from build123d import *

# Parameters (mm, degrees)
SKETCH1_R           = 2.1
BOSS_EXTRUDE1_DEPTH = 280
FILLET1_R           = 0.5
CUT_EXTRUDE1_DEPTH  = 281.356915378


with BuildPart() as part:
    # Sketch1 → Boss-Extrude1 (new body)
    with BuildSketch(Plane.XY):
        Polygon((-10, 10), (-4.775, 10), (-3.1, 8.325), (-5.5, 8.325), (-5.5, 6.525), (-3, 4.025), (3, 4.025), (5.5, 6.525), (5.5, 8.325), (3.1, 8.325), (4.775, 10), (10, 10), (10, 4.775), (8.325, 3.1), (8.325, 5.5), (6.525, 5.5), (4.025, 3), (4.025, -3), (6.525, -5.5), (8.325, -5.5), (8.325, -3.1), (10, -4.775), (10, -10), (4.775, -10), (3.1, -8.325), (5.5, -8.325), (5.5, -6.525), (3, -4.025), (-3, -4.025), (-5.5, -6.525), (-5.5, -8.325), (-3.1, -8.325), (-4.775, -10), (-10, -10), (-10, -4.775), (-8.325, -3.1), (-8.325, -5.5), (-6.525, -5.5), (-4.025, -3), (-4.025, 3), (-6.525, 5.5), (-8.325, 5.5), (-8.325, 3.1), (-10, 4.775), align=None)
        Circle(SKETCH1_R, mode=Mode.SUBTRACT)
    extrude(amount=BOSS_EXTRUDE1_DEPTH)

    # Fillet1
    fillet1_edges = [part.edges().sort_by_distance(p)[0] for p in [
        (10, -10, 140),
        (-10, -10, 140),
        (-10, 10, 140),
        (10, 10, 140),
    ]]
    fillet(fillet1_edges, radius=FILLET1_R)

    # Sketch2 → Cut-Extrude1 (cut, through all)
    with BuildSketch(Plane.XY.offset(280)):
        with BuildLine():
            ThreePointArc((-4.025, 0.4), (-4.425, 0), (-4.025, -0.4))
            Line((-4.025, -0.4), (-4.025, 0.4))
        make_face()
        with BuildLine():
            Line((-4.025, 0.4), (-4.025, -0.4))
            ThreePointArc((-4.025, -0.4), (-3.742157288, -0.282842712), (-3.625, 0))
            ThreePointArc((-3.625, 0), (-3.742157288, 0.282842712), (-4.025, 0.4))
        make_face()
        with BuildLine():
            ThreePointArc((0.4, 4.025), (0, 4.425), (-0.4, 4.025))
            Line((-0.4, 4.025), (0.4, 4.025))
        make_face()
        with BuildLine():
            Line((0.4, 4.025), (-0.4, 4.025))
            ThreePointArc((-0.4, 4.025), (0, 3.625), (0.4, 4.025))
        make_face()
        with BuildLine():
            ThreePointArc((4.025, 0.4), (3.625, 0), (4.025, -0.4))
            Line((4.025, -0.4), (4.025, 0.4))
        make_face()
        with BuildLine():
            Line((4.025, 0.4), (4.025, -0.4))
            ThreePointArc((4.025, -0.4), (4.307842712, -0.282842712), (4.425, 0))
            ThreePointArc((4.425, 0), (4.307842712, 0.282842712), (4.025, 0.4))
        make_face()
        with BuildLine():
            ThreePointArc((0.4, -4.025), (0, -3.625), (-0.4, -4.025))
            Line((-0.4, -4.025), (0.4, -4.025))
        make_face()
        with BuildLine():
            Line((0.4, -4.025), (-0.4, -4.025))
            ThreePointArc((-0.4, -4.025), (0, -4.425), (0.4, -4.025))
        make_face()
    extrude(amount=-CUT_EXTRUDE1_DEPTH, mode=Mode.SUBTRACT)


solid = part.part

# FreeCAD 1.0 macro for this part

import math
import FreeCAD as App
import Part
import Sketcher
from FreeCAD import Vector


def edges_at(feature, points):
    """Names of the edges that pass closest to the given points."""
    edges = feature.Shape.Edges
    near = lambda p: min(range(len(edges)), key=lambda i: edges[i].distToShape(Part.Vertex(*p))[0])
    return sorted({f"Edge{near(p) + 1}" for p in points})

doc = App.newDocument("Part")
body = doc.addObject("PartDesign::Body", "Body")

# Sketch on XY plane
sketch1 = body.newObject("Sketcher::SketchObject", "Sketch")
sketch1.AttachmentSupport = (doc.getObject("XY_Plane"), [""])
sketch1.MapMode = "FlatFace"
sketch1.addGeometry([
    Part.LineSegment(Vector(-4.8, 10, 0), Vector(-10, 10, 0)),  # 0
    Part.LineSegment(Vector(-10, 10, 0), Vector(-10, 4.8, 0)),  # 1
    Part.LineSegment(Vector(-10, 4.8, 0), Vector(-8.3, 3.1, 0)),  # 2
    Part.LineSegment(Vector(-8.3, 3.1, 0), Vector(-8.3, 5.5, 0)),  # 3
    Part.LineSegment(Vector(-8.3, 5.5, 0), Vector(-6.5, 5.5, 0)),  # 4
    Part.LineSegment(Vector(-6.5, 5.5, 0), Vector(-4, 3, 0)),  # 5
    Part.LineSegment(Vector(-4, 3, 0), Vector(-4, -3, 0)),  # 6
    Part.LineSegment(Vector(-4, -3, 0), Vector(-6.5, -5.5, 0)),  # 7
    Part.LineSegment(Vector(-6.5, -5.5, 0), Vector(-8.3, -5.5, 0)),  # 8
    Part.LineSegment(Vector(-8.3, -5.5, 0), Vector(-8.3, -3.1, 0)),  # 9
    Part.LineSegment(Vector(-8.3, -3.1, 0), Vector(-10, -4.8, 0)),  # 10
    Part.LineSegment(Vector(-10, -4.8, 0), Vector(-10, -10, 0)),  # 11
    Part.LineSegment(Vector(-10, -10, 0), Vector(-4.8, -10, 0)),  # 12
    Part.LineSegment(Vector(-4.8, -10, 0), Vector(-3.1, -8.3, 0)),  # 13
    Part.LineSegment(Vector(-3.1, -8.3, 0), Vector(-5.5, -8.3, 0)),  # 14
    Part.LineSegment(Vector(-5.5, -8.3, 0), Vector(-5.5, -6.5, 0)),  # 15
    Part.LineSegment(Vector(-5.5, -6.5, 0), Vector(-3, -4, 0)),  # 16
    Part.LineSegment(Vector(-3, -4, 0), Vector(3, -4, 0)),  # 17
    Part.LineSegment(Vector(3, -4, 0), Vector(5.5, -6.5, 0)),  # 18
    Part.LineSegment(Vector(5.5, -6.5, 0), Vector(5.5, -8.3, 0)),  # 19
    Part.LineSegment(Vector(5.5, -8.3, 0), Vector(3.1, -8.3, 0)),  # 20
    Part.LineSegment(Vector(3.1, -8.3, 0), Vector(4.8, -10, 0)),  # 21
    Part.LineSegment(Vector(4.8, -10, 0), Vector(10, -10, 0)),  # 22
    Part.LineSegment(Vector(10, -10, 0), Vector(10, -4.8, 0)),  # 23
    Part.LineSegment(Vector(10, -4.8, 0), Vector(8.3, -3.1, 0)),  # 24
    Part.LineSegment(Vector(8.3, -3.1, 0), Vector(8.3, -5.5, 0)),  # 25
    Part.LineSegment(Vector(8.3, -5.5, 0), Vector(6.5, -5.5, 0)),  # 26
    Part.LineSegment(Vector(6.5, -5.5, 0), Vector(4, -3, 0)),  # 27
    Part.LineSegment(Vector(4, -3, 0), Vector(4, 3, 0)),  # 28
    Part.LineSegment(Vector(4, 3, 0), Vector(6.5, 5.5, 0)),  # 29
    Part.LineSegment(Vector(6.5, 5.5, 0), Vector(8.3, 5.5, 0)),  # 30
    Part.LineSegment(Vector(8.3, 5.5, 0), Vector(8.3, 3.1, 0)),  # 31
    Part.LineSegment(Vector(8.3, 3.1, 0), Vector(10, 4.8, 0)),  # 32
    Part.LineSegment(Vector(10, 4.8, 0), Vector(10, 10, 0)),  # 33
    Part.LineSegment(Vector(10, 10, 0), Vector(4.8, 10, 0)),  # 34
    Part.LineSegment(Vector(4.8, 10, 0), Vector(3.1, 8.3, 0)),  # 35
    Part.LineSegment(Vector(3.1, 8.3, 0), Vector(5.5, 8.3, 0)),  # 36
    Part.LineSegment(Vector(5.5, 8.3, 0), Vector(5.5, 6.5, 0)),  # 37
    Part.LineSegment(Vector(5.5, 6.5, 0), Vector(3, 4, 0)),  # 38
    Part.LineSegment(Vector(3, 4, 0), Vector(-3, 4, 0)),  # 39
    Part.LineSegment(Vector(-3, 4, 0), Vector(-5.5, 6.5, 0)),  # 40
    Part.LineSegment(Vector(-5.5, 6.5, 0), Vector(-5.5, 8.3, 0)),  # 41
    Part.LineSegment(Vector(-5.5, 8.3, 0), Vector(-3.1, 8.3, 0)),  # 42
    Part.LineSegment(Vector(-3.1, 8.3, 0), Vector(-4.8, 10, 0)),  # 43
    Part.Circle(Vector(0, 0, 0), Vector(0, 0, 1), 2.1),  # 44
], False)
sketch1.addConstraint([
    Sketcher.Constraint("Coincident", 0, 2, 1, 1),
    Sketcher.Constraint("Coincident", 1, 2, 2, 1),
    Sketcher.Constraint("Coincident", 2, 2, 3, 1),
    Sketcher.Constraint("Coincident", 3, 2, 4, 1),
    Sketcher.Constraint("Coincident", 4, 2, 5, 1),
    Sketcher.Constraint("Coincident", 5, 2, 6, 1),
    Sketcher.Constraint("Coincident", 6, 2, 7, 1),
    Sketcher.Constraint("Coincident", 7, 2, 8, 1),
    Sketcher.Constraint("Coincident", 8, 2, 9, 1),
    Sketcher.Constraint("Coincident", 9, 2, 10, 1),
    Sketcher.Constraint("Coincident", 10, 2, 11, 1),
    Sketcher.Constraint("Coincident", 11, 2, 12, 1),
    Sketcher.Constraint("Coincident", 12, 2, 13, 1),
    Sketcher.Constraint("Coincident", 13, 2, 14, 1),
    Sketcher.Constraint("Coincident", 14, 2, 15, 1),
    Sketcher.Constraint("Coincident", 15, 2, 16, 1),
    Sketcher.Constraint("Coincident", 16, 2, 17, 1),
    Sketcher.Constraint("Coincident", 17, 2, 18, 1),
    Sketcher.Constraint("Coincident", 18, 2, 19, 1),
    Sketcher.Constraint("Coincident", 19, 2, 20, 1),
    Sketcher.Constraint("Coincident", 20, 2, 21, 1),
    Sketcher.Constraint("Coincident", 21, 2, 22, 1),
    Sketcher.Constraint("Coincident", 22, 2, 23, 1),
    Sketcher.Constraint("Coincident", 23, 2, 24, 1),
    Sketcher.Constraint("Coincident", 24, 2, 25, 1),
    Sketcher.Constraint("Coincident", 25, 2, 26, 1),
    Sketcher.Constraint("Coincident", 26, 2, 27, 1),
    Sketcher.Constraint("Coincident", 27, 2, 28, 1),
    Sketcher.Constraint("Coincident", 28, 2, 29, 1),
    Sketcher.Constraint("Coincident", 29, 2, 30, 1),
    Sketcher.Constraint("Coincident", 30, 2, 31, 1),
    Sketcher.Constraint("Coincident", 31, 2, 32, 1),
    Sketcher.Constraint("Coincident", 32, 2, 33, 1),
    Sketcher.Constraint("Coincident", 33, 2, 34, 1),
    Sketcher.Constraint("Coincident", 34, 2, 35, 1),
    Sketcher.Constraint("Coincident", 35, 2, 36, 1),
    Sketcher.Constraint("Coincident", 36, 2, 37, 1),
    Sketcher.Constraint("Coincident", 37, 2, 38, 1),
    Sketcher.Constraint("Coincident", 38, 2, 39, 1),
    Sketcher.Constraint("Coincident", 39, 2, 40, 1),
    Sketcher.Constraint("Coincident", 40, 2, 41, 1),
    Sketcher.Constraint("Coincident", 41, 2, 42, 1),
    Sketcher.Constraint("Coincident", 42, 2, 43, 1),
    Sketcher.Constraint("Coincident", 43, 2, 0, 1),
    Sketcher.Constraint("Horizontal", 0),
    Sketcher.Constraint("Vertical", 1),
    Sketcher.Constraint("Vertical", 3),
    Sketcher.Constraint("Horizontal", 4),
    Sketcher.Constraint("Vertical", 6),
    Sketcher.Constraint("Horizontal", 8),
    Sketcher.Constraint("Vertical", 9),
    Sketcher.Constraint("Vertical", 11),
    Sketcher.Constraint("Horizontal", 12),
    Sketcher.Constraint("Horizontal", 14),
    Sketcher.Constraint("Vertical", 15),
    Sketcher.Constraint("Horizontal", 17),
    Sketcher.Constraint("Vertical", 19),
    Sketcher.Constraint("Horizontal", 20),
    Sketcher.Constraint("Horizontal", 22),
    Sketcher.Constraint("Vertical", 23),
    Sketcher.Constraint("Vertical", 25),
    Sketcher.Constraint("Horizontal", 26),
    Sketcher.Constraint("Vertical", 28),
    Sketcher.Constraint("Horizontal", 30),
    Sketcher.Constraint("Vertical", 31),
    Sketcher.Constraint("Vertical", 33),
    Sketcher.Constraint("Horizontal", 34),
    Sketcher.Constraint("Horizontal", 36),
    Sketcher.Constraint("Vertical", 37),
    Sketcher.Constraint("Horizontal", 39),
    Sketcher.Constraint("Vertical", 41),
    Sketcher.Constraint("Horizontal", 42),
    Sketcher.Constraint("Coincident", 44, 3, -1, 1),
    Sketcher.Constraint("Symmetric", 0, 2, 22, 2, -1, 1),
    Sketcher.Constraint("Symmetric", 2, 2, 24, 2, -1, 1),
    Sketcher.Constraint("Symmetric", 4, 2, 26, 2, -1, 1),
    Sketcher.Constraint("Symmetric", 5, 2, 27, 2, -1, 1),
    Sketcher.Constraint("Symmetric", 7, 2, 29, 2, -1, 1),
    Sketcher.Constraint("Symmetric", 9, 2, 31, 2, -1, 1),
    Sketcher.Constraint("Symmetric", 10, 2, 32, 2, -1, 1),
    Sketcher.Constraint("Symmetric", 12, 2, 34, 2, -1, 1),
    Sketcher.Constraint("Symmetric", 13, 2, 35, 2, -1, 1),
    Sketcher.Constraint("Symmetric", 15, 2, 37, 2, -1, 1),
    Sketcher.Constraint("Symmetric", 16, 2, 38, 2, -1, 1),
    Sketcher.Constraint("Symmetric", 18, 2, 40, 2, -1, 1),
    Sketcher.Constraint("Symmetric", 20, 2, 42, 2, -1, 1),
    Sketcher.Constraint("Symmetric", 15, 2, 18, 2, -2),
    Sketcher.Constraint("Symmetric", 13, 2, 20, 2, -2),
    Sketcher.Constraint("Symmetric", 12, 2, 21, 2, -2),
    Sketcher.Constraint("Symmetric", 10, 2, 23, 2, -2),
    Sketcher.Constraint("Symmetric", 9, 2, 24, 2, -2),
    Sketcher.Constraint("Symmetric", 7, 2, 26, 2, -2),
    Sketcher.Constraint("Parallel", 2, 5),
    Sketcher.Constraint("Perpendicular", 5, 7),
    Sketcher.Constraint("Parallel", 7, 10),
    Sketcher.Constraint("Parallel", 10, 13),
    Sketcher.Constraint("Parallel", 13, 16),
    Sketcher.Constraint("Perpendicular", 16, 18),
    Sketcher.Constraint("Parallel", 18, 21),
    Sketcher.Constraint("Perpendicular", 27, 29),
    Sketcher.Constraint("Perpendicular", 38, 40),
    Sketcher.Constraint("Parallel", 40, 43),
    Sketcher.Constraint("Equal", 34, 1),
    Sketcher.Constraint("Equal", 42, 3),
    Sketcher.Constraint("Equal", 39, 6),
    Sketcher.Constraint("Equal", 30, 15),
    Sketcher.Constraint("Equal", 10, 13),
    Sketcher.Constraint("Equal", 7, 16),
    Sketcher.Constraint("Diameter", 44, 4.2),
    Sketcher.Constraint("DistanceX", 17, 1, 17, 2, 6.0),
    Sketcher.Constraint("DistanceX", 4, 1, 4, 2, 1.8),
    Sketcher.Constraint("DistanceX", 14, 2, 14, 1, 2.4),
    Sketcher.Constraint("DistanceX", 0, 2, -1, 1, 10.0),
    Sketcher.Constraint("DistanceY", -1, 1, 2, 2, 3.1),
    Sketcher.Constraint("DistanceX", 0, 2, 0, 1, 5.225),
])
pad1 = body.newObject("PartDesign::Pad", "Pad")
pad1.Profile = sketch1
pad1.Length = 280
doc.recompute()

fillet = body.newObject("PartDesign::Fillet", "Fillet")
fillet.Base = (pad1, edges_at(pad1, [
    (10, -10, 140),
    (-10, -10, 140),
    (-10, 10, 140),
    (10, 10, 140),
]))
fillet.Radius = 0.5

# Sketch on XY plane
sketch2 = body.newObject("Sketcher::SketchObject", "Sketch001")
sketch2.AttachmentSupport = (doc.getObject("XY_Plane"), [""])
sketch2.MapMode = "FlatFace"
sketch2.AttachmentOffset = App.Placement(Vector(0, 0, 280), App.Rotation())
sketch2.addGeometry([
    Part.ArcOfCircle(Part.Circle(Vector(-4.03, 0, 0), Vector(0, 0, 1), 0.4), math.radians(90), math.radians(270)),  # 0
    Part.ArcOfCircle(Part.Circle(Vector(-4.03, 0, 0), Vector(0, 0, 1), 0.4), math.radians(-90), math.radians(0)),  # 1
    Part.ArcOfCircle(Part.Circle(Vector(-4.03, 0, 0), Vector(0, 0, 1), 0.4), math.radians(0), math.radians(90)),  # 2
    Part.Circle(Vector(0, 4.03, 0), Vector(0, 0, 1), 0.4),  # 3
    Part.ArcOfCircle(Part.Circle(Vector(4.03, 0, 0), Vector(0, 0, 1), 0.4), math.radians(90), math.radians(270)),  # 4
    Part.ArcOfCircle(Part.Circle(Vector(4.02, 0, 0), Vector(0, 0, 1), 0.4), math.radians(-90), math.radians(0)),  # 5
    Part.ArcOfCircle(Part.Circle(Vector(4.02, 0, 0), Vector(0, 0, 1), 0.4), math.radians(0), math.radians(90)),  # 6
    Part.Circle(Vector(0, -4.03, 0), Vector(0, 0, 1), 0.4),  # 7
], False)
sketch2.addConstraint([
    Sketcher.Constraint("Tangent", 0, 2, 1, 1),
    Sketcher.Constraint("Tangent", 1, 2, 2, 1),
    Sketcher.Constraint("Tangent", 2, 2, 0, 1),
    Sketcher.Constraint("Tangent", 4, 2, 5, 1),
    Sketcher.Constraint("Tangent", 5, 2, 6, 1),
    Sketcher.Constraint("Tangent", 6, 2, 4, 1),
    Sketcher.Constraint("Equal", 2, 3),
    Sketcher.Constraint("Equal", 3, 4),
    Sketcher.Constraint("Equal", 6, 7),
    Sketcher.Constraint("Symmetric", 0, 3, 4, 3, -1, 1),
    Sketcher.Constraint("Symmetric", 3, 3, 7, 3, -1, 1),
    Sketcher.Constraint("Symmetric", 0, 2, 4, 2, -2),
    Sketcher.Constraint("PointOnObject", 3, 3, -2),
    Sketcher.Constraint("PointOnObject", 1, 2, -1),
    Sketcher.Constraint("PointOnObject", 5, 2, -1),
    Sketcher.Constraint("Vertical", 2, 3, 0, 2),
    Sketcher.Constraint("Vertical", 0, 2, 2, 2),
    Sketcher.Constraint("Vertical", 4, 2, 6, 2),
    Sketcher.Constraint("Diameter", 3, 0.8),
    Sketcher.Constraint("DistanceX", 0, 3, 4, 3, 8.05),
    Sketcher.Constraint("DistanceY", -1, 1, 3, 3, 4.025),
])
pocket1 = body.newObject("PartDesign::Pocket", "Pocket")
pocket1.Profile = sketch2
pocket1.Type = "ThroughAll"

doc.recompute()
